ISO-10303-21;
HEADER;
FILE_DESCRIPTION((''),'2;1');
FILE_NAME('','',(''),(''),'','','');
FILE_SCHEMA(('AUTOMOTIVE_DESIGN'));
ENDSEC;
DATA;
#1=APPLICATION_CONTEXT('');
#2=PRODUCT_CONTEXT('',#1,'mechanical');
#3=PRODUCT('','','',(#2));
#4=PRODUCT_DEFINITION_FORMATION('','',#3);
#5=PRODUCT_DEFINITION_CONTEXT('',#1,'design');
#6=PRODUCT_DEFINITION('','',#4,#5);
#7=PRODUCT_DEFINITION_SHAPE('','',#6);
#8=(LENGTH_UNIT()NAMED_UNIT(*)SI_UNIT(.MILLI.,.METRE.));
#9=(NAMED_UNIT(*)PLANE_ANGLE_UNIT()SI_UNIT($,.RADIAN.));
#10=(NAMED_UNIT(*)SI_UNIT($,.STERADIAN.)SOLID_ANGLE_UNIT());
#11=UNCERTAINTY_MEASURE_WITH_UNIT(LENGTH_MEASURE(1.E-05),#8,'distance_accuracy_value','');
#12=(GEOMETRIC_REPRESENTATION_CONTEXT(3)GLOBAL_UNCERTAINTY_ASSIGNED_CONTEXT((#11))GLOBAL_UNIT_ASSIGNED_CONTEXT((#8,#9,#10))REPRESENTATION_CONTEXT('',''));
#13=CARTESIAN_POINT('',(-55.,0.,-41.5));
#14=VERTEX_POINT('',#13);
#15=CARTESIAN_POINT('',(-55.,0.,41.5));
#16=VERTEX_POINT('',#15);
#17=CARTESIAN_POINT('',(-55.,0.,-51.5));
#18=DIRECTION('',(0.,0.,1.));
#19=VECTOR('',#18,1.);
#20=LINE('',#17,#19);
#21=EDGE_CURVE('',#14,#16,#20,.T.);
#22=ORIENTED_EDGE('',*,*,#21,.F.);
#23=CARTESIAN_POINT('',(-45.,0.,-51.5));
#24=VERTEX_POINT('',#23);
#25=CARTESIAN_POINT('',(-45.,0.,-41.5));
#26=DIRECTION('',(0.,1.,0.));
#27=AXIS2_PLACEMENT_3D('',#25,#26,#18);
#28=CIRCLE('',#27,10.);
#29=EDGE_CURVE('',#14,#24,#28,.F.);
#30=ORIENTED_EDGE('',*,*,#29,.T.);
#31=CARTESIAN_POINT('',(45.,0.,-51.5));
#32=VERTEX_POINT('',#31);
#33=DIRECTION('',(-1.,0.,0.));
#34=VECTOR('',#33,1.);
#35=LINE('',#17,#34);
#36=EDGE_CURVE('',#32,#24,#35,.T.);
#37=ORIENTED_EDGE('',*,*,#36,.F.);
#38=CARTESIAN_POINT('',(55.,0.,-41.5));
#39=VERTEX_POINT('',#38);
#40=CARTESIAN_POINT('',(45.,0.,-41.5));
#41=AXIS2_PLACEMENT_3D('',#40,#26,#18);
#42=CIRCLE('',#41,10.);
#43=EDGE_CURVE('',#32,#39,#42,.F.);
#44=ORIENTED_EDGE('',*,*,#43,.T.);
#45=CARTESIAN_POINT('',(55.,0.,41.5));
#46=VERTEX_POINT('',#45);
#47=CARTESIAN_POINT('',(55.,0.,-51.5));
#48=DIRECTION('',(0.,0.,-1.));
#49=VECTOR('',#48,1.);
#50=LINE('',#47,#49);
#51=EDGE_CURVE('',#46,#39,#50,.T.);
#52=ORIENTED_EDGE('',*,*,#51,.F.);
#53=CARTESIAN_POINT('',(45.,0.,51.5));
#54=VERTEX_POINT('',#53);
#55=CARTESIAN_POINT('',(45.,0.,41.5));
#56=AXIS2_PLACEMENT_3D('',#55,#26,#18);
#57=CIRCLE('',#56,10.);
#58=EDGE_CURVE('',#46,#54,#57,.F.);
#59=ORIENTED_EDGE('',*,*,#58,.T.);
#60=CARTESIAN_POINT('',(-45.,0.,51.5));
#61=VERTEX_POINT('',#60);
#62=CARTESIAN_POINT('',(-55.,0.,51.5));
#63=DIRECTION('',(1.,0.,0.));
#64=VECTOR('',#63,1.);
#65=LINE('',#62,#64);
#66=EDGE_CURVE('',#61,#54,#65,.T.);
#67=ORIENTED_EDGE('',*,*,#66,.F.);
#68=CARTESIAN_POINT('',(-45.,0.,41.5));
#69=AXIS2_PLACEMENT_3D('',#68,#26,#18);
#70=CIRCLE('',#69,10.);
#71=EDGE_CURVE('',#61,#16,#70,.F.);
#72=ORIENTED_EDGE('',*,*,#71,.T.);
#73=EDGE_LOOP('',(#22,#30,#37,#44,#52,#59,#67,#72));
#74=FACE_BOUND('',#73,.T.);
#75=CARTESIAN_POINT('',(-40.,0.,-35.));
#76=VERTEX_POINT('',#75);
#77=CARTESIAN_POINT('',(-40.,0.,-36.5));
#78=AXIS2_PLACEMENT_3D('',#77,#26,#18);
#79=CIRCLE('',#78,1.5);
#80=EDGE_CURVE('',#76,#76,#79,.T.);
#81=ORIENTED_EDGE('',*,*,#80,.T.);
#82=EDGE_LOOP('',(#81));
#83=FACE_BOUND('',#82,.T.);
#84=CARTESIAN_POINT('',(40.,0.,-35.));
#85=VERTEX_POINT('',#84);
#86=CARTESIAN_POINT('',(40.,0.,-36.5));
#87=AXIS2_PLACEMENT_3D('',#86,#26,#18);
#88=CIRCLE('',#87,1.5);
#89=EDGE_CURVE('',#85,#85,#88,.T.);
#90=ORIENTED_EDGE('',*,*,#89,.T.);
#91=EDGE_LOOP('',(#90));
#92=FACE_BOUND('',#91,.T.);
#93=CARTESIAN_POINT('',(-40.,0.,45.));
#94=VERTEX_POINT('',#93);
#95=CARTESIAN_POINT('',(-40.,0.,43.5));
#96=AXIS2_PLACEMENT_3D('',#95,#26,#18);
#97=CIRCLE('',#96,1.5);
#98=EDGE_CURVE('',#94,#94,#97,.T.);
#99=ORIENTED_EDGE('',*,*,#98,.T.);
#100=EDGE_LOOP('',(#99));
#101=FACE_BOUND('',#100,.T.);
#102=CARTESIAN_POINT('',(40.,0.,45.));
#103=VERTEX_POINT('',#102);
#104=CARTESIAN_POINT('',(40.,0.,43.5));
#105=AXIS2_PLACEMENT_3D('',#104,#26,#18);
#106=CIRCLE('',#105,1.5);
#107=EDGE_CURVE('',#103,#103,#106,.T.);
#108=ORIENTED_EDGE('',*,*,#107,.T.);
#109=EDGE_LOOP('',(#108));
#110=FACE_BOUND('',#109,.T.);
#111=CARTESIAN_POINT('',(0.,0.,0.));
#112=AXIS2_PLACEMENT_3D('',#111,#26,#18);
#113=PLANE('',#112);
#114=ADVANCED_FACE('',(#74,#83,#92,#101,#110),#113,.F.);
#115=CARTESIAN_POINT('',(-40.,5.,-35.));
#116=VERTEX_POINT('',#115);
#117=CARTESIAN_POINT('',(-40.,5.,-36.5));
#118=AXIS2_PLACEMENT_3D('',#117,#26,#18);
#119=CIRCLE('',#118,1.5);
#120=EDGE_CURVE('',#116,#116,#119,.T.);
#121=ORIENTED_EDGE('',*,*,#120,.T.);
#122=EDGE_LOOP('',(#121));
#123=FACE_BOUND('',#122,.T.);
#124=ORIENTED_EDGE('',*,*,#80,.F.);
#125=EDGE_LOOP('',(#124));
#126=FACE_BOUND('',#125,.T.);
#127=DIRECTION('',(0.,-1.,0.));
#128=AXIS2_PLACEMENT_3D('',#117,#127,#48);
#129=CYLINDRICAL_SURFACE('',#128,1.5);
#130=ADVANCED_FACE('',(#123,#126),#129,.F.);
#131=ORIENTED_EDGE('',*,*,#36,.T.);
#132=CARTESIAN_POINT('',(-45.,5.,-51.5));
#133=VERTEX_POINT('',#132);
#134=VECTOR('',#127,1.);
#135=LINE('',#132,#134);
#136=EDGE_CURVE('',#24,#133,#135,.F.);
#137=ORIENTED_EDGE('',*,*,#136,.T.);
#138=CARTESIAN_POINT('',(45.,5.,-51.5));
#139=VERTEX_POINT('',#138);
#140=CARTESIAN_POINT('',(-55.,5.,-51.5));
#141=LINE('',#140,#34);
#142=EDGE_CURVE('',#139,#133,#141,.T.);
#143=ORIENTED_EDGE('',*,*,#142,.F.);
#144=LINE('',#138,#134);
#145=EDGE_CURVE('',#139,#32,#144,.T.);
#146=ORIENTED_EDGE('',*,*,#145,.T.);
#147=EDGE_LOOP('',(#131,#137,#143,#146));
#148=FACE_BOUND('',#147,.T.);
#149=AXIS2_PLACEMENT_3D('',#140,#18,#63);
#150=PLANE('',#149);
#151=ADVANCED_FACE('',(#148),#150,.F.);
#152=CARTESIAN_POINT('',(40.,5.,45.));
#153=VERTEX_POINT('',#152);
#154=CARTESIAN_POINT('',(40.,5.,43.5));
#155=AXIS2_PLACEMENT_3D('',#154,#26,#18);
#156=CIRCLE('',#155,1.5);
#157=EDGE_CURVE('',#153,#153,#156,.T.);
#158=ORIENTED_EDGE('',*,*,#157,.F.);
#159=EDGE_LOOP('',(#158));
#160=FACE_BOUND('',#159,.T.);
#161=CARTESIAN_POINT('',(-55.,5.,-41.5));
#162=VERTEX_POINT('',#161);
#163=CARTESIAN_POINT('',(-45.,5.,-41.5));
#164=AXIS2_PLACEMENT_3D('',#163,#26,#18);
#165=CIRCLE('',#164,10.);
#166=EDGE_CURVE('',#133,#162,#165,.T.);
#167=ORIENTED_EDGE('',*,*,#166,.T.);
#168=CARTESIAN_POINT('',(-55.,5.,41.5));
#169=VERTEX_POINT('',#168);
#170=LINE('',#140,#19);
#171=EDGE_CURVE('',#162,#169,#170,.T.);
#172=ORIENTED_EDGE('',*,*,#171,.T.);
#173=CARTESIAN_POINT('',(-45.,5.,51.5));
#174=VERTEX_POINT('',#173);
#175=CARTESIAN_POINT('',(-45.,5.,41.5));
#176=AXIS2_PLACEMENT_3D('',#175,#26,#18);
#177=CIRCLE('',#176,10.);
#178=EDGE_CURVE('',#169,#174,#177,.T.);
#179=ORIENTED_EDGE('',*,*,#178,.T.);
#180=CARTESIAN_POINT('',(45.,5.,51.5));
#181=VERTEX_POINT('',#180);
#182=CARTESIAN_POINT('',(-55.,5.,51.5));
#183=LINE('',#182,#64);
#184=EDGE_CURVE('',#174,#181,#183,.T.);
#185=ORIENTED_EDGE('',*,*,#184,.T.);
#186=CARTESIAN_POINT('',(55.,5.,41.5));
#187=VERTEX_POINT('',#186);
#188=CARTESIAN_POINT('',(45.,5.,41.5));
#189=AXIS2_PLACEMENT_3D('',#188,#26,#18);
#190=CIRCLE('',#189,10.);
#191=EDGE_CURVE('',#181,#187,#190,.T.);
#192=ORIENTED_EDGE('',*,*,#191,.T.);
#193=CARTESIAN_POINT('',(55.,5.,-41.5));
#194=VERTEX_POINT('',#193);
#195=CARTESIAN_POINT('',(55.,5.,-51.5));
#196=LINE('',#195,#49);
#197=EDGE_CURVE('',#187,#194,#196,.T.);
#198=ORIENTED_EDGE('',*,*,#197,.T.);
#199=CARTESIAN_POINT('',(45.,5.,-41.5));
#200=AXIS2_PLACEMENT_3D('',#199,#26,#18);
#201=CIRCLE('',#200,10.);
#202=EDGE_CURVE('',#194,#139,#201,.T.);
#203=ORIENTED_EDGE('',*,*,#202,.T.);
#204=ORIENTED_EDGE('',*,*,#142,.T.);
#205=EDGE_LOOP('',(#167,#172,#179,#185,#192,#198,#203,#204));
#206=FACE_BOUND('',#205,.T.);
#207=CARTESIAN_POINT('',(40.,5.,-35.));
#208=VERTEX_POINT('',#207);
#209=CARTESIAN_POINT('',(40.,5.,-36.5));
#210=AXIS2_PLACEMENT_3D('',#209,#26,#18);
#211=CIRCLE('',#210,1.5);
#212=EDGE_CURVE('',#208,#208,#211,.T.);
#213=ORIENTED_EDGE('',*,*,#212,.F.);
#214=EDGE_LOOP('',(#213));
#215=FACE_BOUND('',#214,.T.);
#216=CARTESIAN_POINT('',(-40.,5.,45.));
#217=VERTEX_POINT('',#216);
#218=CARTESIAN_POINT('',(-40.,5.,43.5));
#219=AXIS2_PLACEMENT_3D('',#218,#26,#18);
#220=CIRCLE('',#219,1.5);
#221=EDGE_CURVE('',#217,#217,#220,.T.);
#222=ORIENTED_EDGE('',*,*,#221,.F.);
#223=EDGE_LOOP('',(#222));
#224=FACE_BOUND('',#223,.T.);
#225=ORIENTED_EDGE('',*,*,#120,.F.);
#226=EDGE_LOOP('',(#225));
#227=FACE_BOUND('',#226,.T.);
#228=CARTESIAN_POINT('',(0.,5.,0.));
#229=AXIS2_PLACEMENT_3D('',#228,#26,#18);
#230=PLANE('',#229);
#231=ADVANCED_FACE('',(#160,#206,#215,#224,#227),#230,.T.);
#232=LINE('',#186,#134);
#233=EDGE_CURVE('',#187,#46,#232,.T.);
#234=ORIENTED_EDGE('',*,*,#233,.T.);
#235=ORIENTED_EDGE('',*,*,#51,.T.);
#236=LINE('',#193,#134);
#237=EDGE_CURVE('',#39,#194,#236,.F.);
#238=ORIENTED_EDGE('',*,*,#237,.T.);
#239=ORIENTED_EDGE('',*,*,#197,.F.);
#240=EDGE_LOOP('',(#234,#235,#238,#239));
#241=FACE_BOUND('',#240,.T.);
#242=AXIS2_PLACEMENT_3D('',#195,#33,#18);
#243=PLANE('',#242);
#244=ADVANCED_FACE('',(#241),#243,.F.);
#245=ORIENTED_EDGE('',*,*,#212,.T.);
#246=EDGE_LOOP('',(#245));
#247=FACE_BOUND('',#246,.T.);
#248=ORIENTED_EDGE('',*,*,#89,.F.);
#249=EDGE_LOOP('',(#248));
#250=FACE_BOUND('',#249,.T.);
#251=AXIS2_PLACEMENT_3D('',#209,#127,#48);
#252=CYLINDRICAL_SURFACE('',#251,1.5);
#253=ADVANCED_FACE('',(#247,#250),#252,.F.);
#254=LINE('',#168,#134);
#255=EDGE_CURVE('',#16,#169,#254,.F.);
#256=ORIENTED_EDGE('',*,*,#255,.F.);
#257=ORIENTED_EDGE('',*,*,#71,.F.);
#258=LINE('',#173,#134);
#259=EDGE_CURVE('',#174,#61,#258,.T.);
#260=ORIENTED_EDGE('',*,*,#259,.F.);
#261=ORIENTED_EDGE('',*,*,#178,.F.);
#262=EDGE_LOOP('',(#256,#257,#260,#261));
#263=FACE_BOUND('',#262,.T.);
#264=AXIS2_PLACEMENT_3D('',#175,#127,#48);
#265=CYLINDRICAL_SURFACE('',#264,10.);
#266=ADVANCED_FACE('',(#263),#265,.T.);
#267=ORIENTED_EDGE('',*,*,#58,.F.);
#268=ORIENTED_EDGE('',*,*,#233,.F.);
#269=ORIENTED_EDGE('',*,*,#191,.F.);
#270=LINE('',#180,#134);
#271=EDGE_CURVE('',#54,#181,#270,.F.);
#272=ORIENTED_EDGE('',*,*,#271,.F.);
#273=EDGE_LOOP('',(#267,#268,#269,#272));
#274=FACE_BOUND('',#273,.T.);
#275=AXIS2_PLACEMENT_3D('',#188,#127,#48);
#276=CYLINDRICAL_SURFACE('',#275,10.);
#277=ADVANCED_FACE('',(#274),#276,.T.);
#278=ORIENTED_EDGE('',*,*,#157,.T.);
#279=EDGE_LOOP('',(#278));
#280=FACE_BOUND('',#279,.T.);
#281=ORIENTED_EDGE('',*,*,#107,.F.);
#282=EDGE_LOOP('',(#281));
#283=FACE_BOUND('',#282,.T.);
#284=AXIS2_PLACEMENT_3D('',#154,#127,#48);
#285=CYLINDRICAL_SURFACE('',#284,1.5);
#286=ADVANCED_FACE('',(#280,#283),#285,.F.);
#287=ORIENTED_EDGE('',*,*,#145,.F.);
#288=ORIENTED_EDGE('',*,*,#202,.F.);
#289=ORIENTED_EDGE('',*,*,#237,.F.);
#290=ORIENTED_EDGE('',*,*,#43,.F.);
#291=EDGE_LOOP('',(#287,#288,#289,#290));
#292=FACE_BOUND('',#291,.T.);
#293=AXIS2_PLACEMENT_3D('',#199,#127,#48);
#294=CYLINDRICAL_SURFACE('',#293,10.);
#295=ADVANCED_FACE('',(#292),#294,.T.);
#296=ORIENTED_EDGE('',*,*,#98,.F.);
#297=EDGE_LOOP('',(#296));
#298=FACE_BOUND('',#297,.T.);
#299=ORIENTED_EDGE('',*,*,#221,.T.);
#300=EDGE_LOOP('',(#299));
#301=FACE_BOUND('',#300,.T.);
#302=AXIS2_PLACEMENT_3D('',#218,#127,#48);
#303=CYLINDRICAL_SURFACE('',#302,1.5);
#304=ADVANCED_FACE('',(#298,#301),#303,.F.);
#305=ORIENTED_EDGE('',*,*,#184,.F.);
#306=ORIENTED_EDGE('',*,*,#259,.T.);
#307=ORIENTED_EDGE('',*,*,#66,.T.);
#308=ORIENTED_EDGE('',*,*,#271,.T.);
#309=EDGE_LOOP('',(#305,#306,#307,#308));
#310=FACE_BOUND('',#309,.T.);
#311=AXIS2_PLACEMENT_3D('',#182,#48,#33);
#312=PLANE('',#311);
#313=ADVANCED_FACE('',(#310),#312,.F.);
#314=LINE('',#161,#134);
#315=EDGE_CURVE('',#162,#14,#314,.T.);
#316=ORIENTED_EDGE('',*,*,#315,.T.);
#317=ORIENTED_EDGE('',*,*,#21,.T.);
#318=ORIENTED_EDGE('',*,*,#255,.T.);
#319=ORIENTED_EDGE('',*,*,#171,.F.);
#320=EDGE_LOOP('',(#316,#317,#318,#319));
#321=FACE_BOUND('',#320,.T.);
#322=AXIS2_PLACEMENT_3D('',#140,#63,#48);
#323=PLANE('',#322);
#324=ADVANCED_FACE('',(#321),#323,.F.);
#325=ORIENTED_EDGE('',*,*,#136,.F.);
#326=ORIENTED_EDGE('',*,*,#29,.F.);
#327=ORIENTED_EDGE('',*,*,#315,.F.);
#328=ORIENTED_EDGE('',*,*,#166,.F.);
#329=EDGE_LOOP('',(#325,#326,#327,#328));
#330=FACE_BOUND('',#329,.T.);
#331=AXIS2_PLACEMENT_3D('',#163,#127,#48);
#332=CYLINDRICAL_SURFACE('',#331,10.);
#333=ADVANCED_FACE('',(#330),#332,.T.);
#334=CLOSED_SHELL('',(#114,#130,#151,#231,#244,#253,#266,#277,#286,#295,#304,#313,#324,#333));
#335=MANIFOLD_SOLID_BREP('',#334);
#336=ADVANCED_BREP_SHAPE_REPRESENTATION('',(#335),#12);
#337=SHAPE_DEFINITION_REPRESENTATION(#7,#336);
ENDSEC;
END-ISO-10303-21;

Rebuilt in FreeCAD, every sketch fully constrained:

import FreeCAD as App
import Part
import Sketcher


def edges_at(feature, points):
    """Names of the edges that pass closest to the given points."""
    edges = feature.Shape.Edges
    near = lambda p: min(range(len(edges)), key=lambda i: edges[i].distToShape(Part.Vertex(*p))[0])
    return sorted({f"Edge{near(p) + 1}" for p in points})

doc = App.newDocument("Part")
params = doc.addObject("Spreadsheet::Sheet", "Params")
for row, (alias, value) in enumerate([
    ("sketch1_diameter", "3 mm"),
    ("sketch1_width", "110 mm"),
    ("sketch1_height", "103 mm"),
    ("pad1_length", "5 mm"),
    ("fillet_radius", "10 mm"),
], start=1):
    params.set(f"A{row}", alias)
    params.set(f"B{row}", "=" + value)
    params.setAlias(f"B{row}", alias)

body = doc.addObject("PartDesign::Body", "Body")

sketch1 = body.newObject("Sketcher::SketchObject", "Sketch")
sketch1.AttachmentSupport = (doc.getObject("XZ_Plane"), [""])
sketch1.MapMode = "FlatFace"
sketch1.addGeometry(Part.LineSegment(App.Vector(-55, -51.5, 0), App.Vector(-55, 51.5, 0)), False)
sketch1.addGeometry(Part.LineSegment(App.Vector(-55, 51.5, 0), App.Vector(55, 51.5, 0)), False)
sketch1.addGeometry(Part.LineSegment(App.Vector(55, 51.5, 0), App.Vector(55, -51.5, 0)), False)
sketch1.addGeometry(Part.LineSegment(App.Vector(55, -51.5, 0), App.Vector(-55, -51.5, 0)), False)
sketch1.addGeometry(Part.Circle(App.Vector(-40, 43.5, 0), App.Vector(0, 0, 1), 1.5), False)
sketch1.addGeometry(Part.Circle(App.Vector(40, 43.5, 0), App.Vector(0, 0, 1), 1.5), False)
sketch1.addGeometry(Part.Circle(App.Vector(-40, -36.5, 0), App.Vector(0, 0, 1), 1.5), False)
sketch1.addGeometry(Part.Circle(App.Vector(40, -36.5, 0), App.Vector(0, 0, 1), 1.5), False)
sketch1.addConstraint(Sketcher.Constraint("Coincident", 0, 2, 1, 1))
sketch1.addConstraint(Sketcher.Constraint("Coincident", 1, 2, 2, 1))
sketch1.addConstraint(Sketcher.Constraint("Coincident", 2, 2, 3, 1))
sketch1.addConstraint(Sketcher.Constraint("Coincident", 3, 2, 0, 1))
sketch1.addConstraint(Sketcher.Constraint("Vertical", 0))
sketch1.addConstraint(Sketcher.Constraint("Horizontal", 1))
sketch1.addConstraint(Sketcher.Constraint("Vertical", 2))
sketch1.addConstraint(Sketcher.Constraint("Horizontal", 3))
sketch1.addConstraint(Sketcher.Constraint("Equal", 4, 5))
sketch1.addConstraint(Sketcher.Constraint("Equal", 5, 6))
sketch1.addConstraint(Sketcher.Constraint("Equal", 6, 7))
sketch1.addConstraint(Sketcher.Constraint("Symmetric", 0, 2, 2, 2, -1, 1))
sketch1.addConstraint(Sketcher.Constraint("Symmetric", 4, 3, 5, 3, -2))
sketch1.addConstraint(Sketcher.Constraint("Symmetric", 6, 3, 7, 3, -2))
sketch1.addConstraint(Sketcher.Constraint("Vertical", 4, 3, 6, 3))
sketch1.addConstraint(Sketcher.Constraint("Diameter", 4, 3.0))
sketch1.addConstraint(Sketcher.Constraint("DistanceX", 1, 1, 1, 2, 110.0))
sketch1.addConstraint(Sketcher.Constraint("DistanceY", 0, 1, 0, 2, 103.0))
sketch1.addConstraint(Sketcher.Constraint("DistanceX", 4, 3, -1, 1, 40.0))
sketch1.addConstraint(Sketcher.Constraint("DistanceY", 6, 3, 4, 3, 80.0))
sketch1.addConstraint(Sketcher.Constraint("DistanceY", 4, 3, 0, 2, 8.0))
sketch1.setExpression("Constraints[15]", "Params.sketch1_diameter")
sketch1.setExpression("Constraints[16]", "Params.sketch1_width")
sketch1.setExpression("Constraints[17]", "Params.sketch1_height")
pad1 = body.newObject("PartDesign::Pad", "Pad")
pad1.Profile = sketch1
pad1.setExpression("Length", "Params.pad1_length")
pad1.Reversed = True
doc.recompute()

fillet = body.newObject("PartDesign::Fillet", "Fillet")
fillet.Base = (pad1, edges_at(pad1, [
    (55, 2.5, 51.5),
    (-55, 2.5, 51.5),
    (-55, 2.5, -51.5),
    (55, 2.5, -51.5),
]))
fillet.setExpression("Radius", "Params.fillet_radius")

doc.recompute()
